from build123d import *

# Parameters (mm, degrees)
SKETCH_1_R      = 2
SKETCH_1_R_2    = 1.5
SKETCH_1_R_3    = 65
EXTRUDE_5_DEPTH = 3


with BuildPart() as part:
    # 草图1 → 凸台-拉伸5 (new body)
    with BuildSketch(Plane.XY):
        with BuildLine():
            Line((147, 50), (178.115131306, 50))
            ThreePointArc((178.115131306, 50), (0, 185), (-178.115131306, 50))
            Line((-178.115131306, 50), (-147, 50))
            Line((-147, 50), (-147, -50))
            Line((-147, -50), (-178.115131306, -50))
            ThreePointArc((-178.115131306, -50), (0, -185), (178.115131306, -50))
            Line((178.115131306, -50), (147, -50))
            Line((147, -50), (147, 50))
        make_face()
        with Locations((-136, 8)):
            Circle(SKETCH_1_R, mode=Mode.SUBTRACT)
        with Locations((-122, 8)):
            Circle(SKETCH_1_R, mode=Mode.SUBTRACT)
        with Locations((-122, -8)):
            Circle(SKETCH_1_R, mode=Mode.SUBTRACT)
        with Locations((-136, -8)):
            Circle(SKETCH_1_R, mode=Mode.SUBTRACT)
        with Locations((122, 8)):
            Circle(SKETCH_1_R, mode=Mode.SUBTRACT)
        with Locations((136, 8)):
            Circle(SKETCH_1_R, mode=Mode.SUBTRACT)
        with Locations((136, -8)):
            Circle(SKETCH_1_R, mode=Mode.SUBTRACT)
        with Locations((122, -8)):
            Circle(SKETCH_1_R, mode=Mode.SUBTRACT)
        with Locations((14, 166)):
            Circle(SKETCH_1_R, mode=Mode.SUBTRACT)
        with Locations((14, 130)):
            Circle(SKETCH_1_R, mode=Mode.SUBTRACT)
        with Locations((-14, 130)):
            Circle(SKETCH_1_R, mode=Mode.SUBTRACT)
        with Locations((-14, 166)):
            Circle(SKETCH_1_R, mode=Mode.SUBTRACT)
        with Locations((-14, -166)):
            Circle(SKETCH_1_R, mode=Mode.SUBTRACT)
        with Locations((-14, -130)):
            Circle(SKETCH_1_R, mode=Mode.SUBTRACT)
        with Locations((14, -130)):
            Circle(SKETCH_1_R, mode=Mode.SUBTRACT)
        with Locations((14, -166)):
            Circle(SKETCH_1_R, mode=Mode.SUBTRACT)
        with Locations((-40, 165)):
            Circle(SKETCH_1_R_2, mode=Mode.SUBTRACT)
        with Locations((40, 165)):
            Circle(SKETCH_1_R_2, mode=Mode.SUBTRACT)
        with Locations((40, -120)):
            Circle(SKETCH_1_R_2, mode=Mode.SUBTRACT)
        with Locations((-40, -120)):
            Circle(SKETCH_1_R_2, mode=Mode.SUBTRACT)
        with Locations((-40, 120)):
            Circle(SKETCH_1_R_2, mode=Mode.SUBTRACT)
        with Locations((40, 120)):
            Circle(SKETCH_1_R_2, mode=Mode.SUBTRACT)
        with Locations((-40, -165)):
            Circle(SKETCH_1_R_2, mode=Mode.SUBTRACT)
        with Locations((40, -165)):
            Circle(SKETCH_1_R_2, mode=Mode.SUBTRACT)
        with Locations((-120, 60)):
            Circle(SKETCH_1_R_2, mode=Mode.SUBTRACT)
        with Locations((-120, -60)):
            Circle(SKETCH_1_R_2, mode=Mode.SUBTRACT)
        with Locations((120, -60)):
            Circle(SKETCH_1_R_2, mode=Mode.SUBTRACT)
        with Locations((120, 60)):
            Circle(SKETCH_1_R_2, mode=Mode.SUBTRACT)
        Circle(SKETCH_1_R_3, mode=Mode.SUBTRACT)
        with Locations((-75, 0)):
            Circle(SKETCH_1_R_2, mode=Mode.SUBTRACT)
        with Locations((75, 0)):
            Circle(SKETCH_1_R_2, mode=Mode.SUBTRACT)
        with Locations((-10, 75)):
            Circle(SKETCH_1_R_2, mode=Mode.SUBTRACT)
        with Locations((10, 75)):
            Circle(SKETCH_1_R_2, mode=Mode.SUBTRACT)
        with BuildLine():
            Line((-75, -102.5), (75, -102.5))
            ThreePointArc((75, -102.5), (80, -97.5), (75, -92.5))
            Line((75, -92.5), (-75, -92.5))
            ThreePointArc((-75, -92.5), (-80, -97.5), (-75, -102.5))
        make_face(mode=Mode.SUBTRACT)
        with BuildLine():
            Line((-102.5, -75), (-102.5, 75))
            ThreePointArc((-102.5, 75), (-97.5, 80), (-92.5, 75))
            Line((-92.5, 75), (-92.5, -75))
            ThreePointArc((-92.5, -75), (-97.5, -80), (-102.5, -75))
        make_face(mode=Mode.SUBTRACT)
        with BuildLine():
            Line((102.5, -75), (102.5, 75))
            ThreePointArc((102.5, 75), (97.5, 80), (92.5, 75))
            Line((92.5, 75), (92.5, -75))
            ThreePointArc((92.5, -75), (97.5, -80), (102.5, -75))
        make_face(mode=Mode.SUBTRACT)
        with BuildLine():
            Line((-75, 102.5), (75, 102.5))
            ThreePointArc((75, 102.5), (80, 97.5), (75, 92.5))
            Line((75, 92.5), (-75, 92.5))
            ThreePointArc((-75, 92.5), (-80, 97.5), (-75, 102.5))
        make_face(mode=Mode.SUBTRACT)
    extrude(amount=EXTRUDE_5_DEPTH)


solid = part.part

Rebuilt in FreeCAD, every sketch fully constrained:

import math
import FreeCAD as App
import Part
import Sketcher

V = App.Vector
Q = App.Units.Quantity

doc = App.newDocument("Part")
body = doc.addObject("PartDesign::Body", "Body")

# Sketch on XY plane
sketch1 = body.newObject("Sketcher::SketchObject", "Sketch")
sketch1.AttachmentSupport = (doc.getObject("XY_Plane"), [""])
sketch1.MapMode = "FlatFace"
sketch1.addGeometry(Part.LineSegment(V(147, 50, 0), V(178.1, 50, 0)), False)
sketch1.addGeometry(Part.ArcOfCircle(Part.Circle(V(0, 0, 0), V(0, 0, 1), 185), math.radians(16), math.radians(164)), False)
sketch1.addGeometry(Part.LineSegment(V(-178.1, 50, 0), V(-147, 50, 0)), False)
sketch1.addGeometry(Part.LineSegment(V(-147, 50, 0), V(-147, -50, 0)), False)
sketch1.addGeometry(Part.LineSegment(V(-147, -50, 0), V(-178.1, -50, 0)), False)
sketch1.addGeometry(Part.ArcOfCircle(Part.Circle(V(0, 0, 0), V(0, 0, 1), 185), math.radians(-164), math.radians(-16)), False)
sketch1.addGeometry(Part.LineSegment(V(178.1, -50, 0), V(147, -50, 0)), False)
sketch1.addGeometry(Part.LineSegment(V(147, -50, 0), V(147, 50, 0)), False)
sketch1.addGeometry(Part.Circle(V(-40, -165, 0), V(0, 0, 1), 1.5), False)
sketch1.addGeometry(Part.Circle(V(-14, -166, 0), V(0, 0, 1), 2), False)
sketch1.addGeometry(Part.Circle(V(-14, -130, 0), V(0, 0, 1), 2), False)
sketch1.addGeometry(Part.Circle(V(-40, -120, 0), V(0, 0, 1), 1.5), False)
sketch1.addGeometry(Part.Circle(V(-120, -60, 0), V(0, 0, 1), 1.5), False)
sketch1.addGeometry(Part.Circle(V(-136, -8, 0), V(0, 0, 1), 2), False)
sketch1.addGeometry(Part.Circle(V(-122, -8, 0), V(0, 0, 1), 2), False)
sketch1.addGeometry(Part.Circle(V(14, -166, 0), V(0, 0, 1), 2), False)
sketch1.addGeometry(Part.Circle(V(14, -130, 0), V(0, 0, 1), 2), False)
sketch1.addGeometry(Part.Circle(V(40, -165, 0), V(0, 0, 1), 1.5), False)
sketch1.addGeometry(Part.LineSegment(V(75, -102.5, 0), V(-75, -102.5, 0)), False)
sketch1.addGeometry(Part.ArcOfCircle(Part.Circle(V(-75, -97.5, 0), V(0, 0, 1), 5), math.radians(90), math.radians(270)), False)
sketch1.addGeometry(Part.LineSegment(V(-75, -92.5, 0), V(75, -92.5, 0)), False)
sketch1.addGeometry(Part.ArcOfCircle(Part.Circle(V(75, -97.5, 0), V(0, 0, 1), 5), math.radians(-90), math.radians(90)), False)
sketch1.addGeometry(Part.Circle(V(40, -120, 0), V(0, 0, 1), 1.5), False)
sketch1.addGeometry(Part.Circle(V(120, -60, 0), V(0, 0, 1), 1.5), False)
sketch1.addGeometry(Part.Circle(V(122, -8, 0), V(0, 0, 1), 2), False)
sketch1.addGeometry(Part.Circle(V(136, -8, 0), V(0, 0, 1), 2), False)
sketch1.addGeometry(Part.Circle(V(-136, 8, 0), V(0, 0, 1), 2), False)
sketch1.addGeometry(Part.Circle(V(-122, 8, 0), V(0, 0, 1), 2), False)
sketch1.addGeometry(Part.ArcOfCircle(Part.Circle(V(-97.5, -75, 0), V(0, 0, 1), 5), math.radians(180), math.radians(360)), False)
sketch1.addGeometry(Part.LineSegment(V(-102.5, -75, 0), V(-102.5, 75, 0)), False)
sketch1.addGeometry(Part.ArcOfCircle(Part.Circle(V(-97.5, 75, 0), V(0, 0, 1), 5), math.radians(0), math.radians(180)), False)
sketch1.addGeometry(Part.LineSegment(V(-92.5, 75, 0), V(-92.5, -75, 0)), False)
sketch1.addGeometry(Part.Circle(V(-75, 0, 0), V(0, 0, 1), 1.5), False)
sketch1.addGeometry(Part.Circle(V(-120, 60, 0), V(0, 0, 1), 1.5), False)
sketch1.addGeometry(Part.Circle(V(-10, 75, 0), V(0, 0, 1), 1.5), False)
sketch1.addGeometry(Part.Circle(V(-40, 120, 0), V(0, 0, 1), 1.5), False)
sketch1.addGeometry(Part.Circle(V(-40, 165, 0), V(0, 0, 1), 1.5), False)
sketch1.addGeometry(Part.Circle(V(-14, 130, 0), V(0, 0, 1), 2), False)
sketch1.addGeometry(Part.Circle(V(-14, 166, 0), V(0, 0, 1), 2), False)
sketch1.addGeometry(Part.Circle(V(0, 0, 0), V(0, 0, 1), 65), False)
sketch1.addGeometry(Part.Circle(V(10, 75, 0), V(0, 0, 1), 1.5), False)
sketch1.addGeometry(Part.Circle(V(75, 0, 0), V(0, 0, 1), 1.5), False)
sketch1.addGeometry(Part.LineSegment(V(102.5, 75, 0), V(102.5, -75, 0)), False)
sketch1.addGeometry(Part.ArcOfCircle(Part.Circle(V(97.5, -75, 0), V(0, 0, 1), 5), math.radians(180), math.radians(360)), False)
sketch1.addGeometry(Part.LineSegment(V(92.5, -75, 0), V(92.5, 75, 0)), False)
sketch1.addGeometry(Part.ArcOfCircle(Part.Circle(V(97.5, 75, 0), V(0, 0, 1), 5), math.radians(0), math.radians(180)), False)
sketch1.addGeometry(Part.Circle(V(122, 8, 0), V(0, 0, 1), 2), False)
sketch1.addGeometry(Part.Circle(V(136, 8, 0), V(0, 0, 1), 2), False)
sketch1.addGeometry(Part.Circle(V(120, 60, 0), V(0, 0, 1), 1.5), False)
sketch1.addGeometry(Part.ArcOfCircle(Part.Circle(V(-75, 97.5, 0), V(0, 0, 1), 5), math.radians(90), math.radians(270)), False)
sketch1.addGeometry(Part.LineSegment(V(-75, 102.5, 0), V(75, 102.5, 0)), False)
sketch1.addGeometry(Part.ArcOfCircle(Part.Circle(V(75, 97.5, 0), V(0, 0, 1), 5), math.radians(-90), math.radians(90)), False)
sketch1.addGeometry(Part.LineSegment(V(75, 92.5, 0), V(-75, 92.5, 0)), False)
sketch1.addGeometry(Part.Circle(V(40, 120, 0), V(0, 0, 1), 1.5), False)
sketch1.addGeometry(Part.Circle(V(14, 130, 0), V(0, 0, 1), 2), False)
sketch1.addGeometry(Part.Circle(V(14, 166, 0), V(0, 0, 1), 2), False)
sketch1.addGeometry(Part.Circle(V(40, 165, 0), V(0, 0, 1), 1.5), False)
sketch1.addConstraint(Sketcher.Constraint("Coincident", 0, 2, 1, 1))
sketch1.addConstraint(Sketcher.Constraint("Coincident", 1, 2, 2, 1))
sketch1.addConstraint(Sketcher.Constraint("Coincident", 2, 2, 3, 1))
sketch1.addConstraint(Sketcher.Constraint("Coincident", 3, 2, 4, 1))
sketch1.addConstraint(Sketcher.Constraint("Coincident", 4, 2, 5, 1))
sketch1.addConstraint(Sketcher.Constraint("Coincident", 5, 2, 6, 1))
sketch1.addConstraint(Sketcher.Constraint("Coincident", 6, 2, 7, 1))
sketch1.addConstraint(Sketcher.Constraint("Coincident", 7, 2, 0, 1))
sketch1.addConstraint(Sketcher.Constraint("Tangent", 18, 2, 19, 2))
sketch1.addConstraint(Sketcher.Constraint("Tangent", 19, 1, 20, 1))
sketch1.addConstraint(Sketcher.Constraint("Tangent", 20, 2, 21, 2))
sketch1.addConstraint(Sketcher.Constraint("Tangent", 21, 1, 18, 1))
sketch1.addConstraint(Sketcher.Constraint("Tangent", 28, 1, 29, 1))
sketch1.addConstraint(Sketcher.Constraint("Tangent", 29, 2, 30, 2))
sketch1.addConstraint(Sketcher.Constraint("Tangent", 30, 1, 31, 1))
sketch1.addConstraint(Sketcher.Constraint("Tangent", 31, 2, 28, 2))
sketch1.addConstraint(Sketcher.Constraint("Tangent", 42, 2, 43, 2))
sketch1.addConstraint(Sketcher.Constraint("Tangent", 43, 1, 44, 1))
sketch1.addConstraint(Sketcher.Constraint("Tangent", 44, 2, 45, 2))
sketch1.addConstraint(Sketcher.Constraint("Tangent", 45, 1, 42, 1))
sketch1.addConstraint(Sketcher.Constraint("Tangent", 49, 1, 50, 1))
sketch1.addConstraint(Sketcher.Constraint("Tangent", 50, 2, 51, 2))
sketch1.addConstraint(Sketcher.Constraint("Tangent", 51, 1, 52, 1))
sketch1.addConstraint(Sketcher.Constraint("Tangent", 52, 2, 49, 2))
sketch1.addConstraint(Sketcher.Constraint("Horizontal", 0))
sketch1.addConstraint(Sketcher.Constraint("Horizontal", 2))
sketch1.addConstraint(Sketcher.Constraint("Vertical", 3))
sketch1.addConstraint(Sketcher.Constraint("Horizontal", 4))
sketch1.addConstraint(Sketcher.Constraint("Horizontal", 6))
sketch1.addConstraint(Sketcher.Constraint("Vertical", 7))
sketch1.addConstraint(Sketcher.Constraint("Horizontal", 18))
sketch1.addConstraint(Sketcher.Constraint("Horizontal", 20))
sketch1.addConstraint(Sketcher.Constraint("Vertical", 29))
sketch1.addConstraint(Sketcher.Constraint("Vertical", 31))
sketch1.addConstraint(Sketcher.Constraint("Vertical", 42))
sketch1.addConstraint(Sketcher.Constraint("Vertical", 44))
sketch1.addConstraint(Sketcher.Constraint("Horizontal", 50))
sketch1.addConstraint(Sketcher.Constraint("Horizontal", 52))
sketch1.addConstraint(Sketcher.Constraint("Coincident", 1, 3, -1, 1))
sketch1.addConstraint(Sketcher.Constraint("Coincident", 5, 3, -1, 1))
sketch1.addConstraint(Sketcher.Constraint("Coincident", 39, 3, -1, 1))
sketch1.addConstraint(Sketcher.Constraint("Equal", 1, 5))
sketch1.addConstraint(Sketcher.Constraint("Equal", 9, 10))
sketch1.addConstraint(Sketcher.Constraint("Equal", 8, 11))
sketch1.addConstraint(Sketcher.Constraint("Equal", 11, 12))
sketch1.addConstraint(Sketcher.Constraint("Equal", 10, 13))
sketch1.addConstraint(Sketcher.Constraint("Equal", 13, 14))
sketch1.addConstraint(Sketcher.Constraint("Equal", 14, 15))
sketch1.addConstraint(Sketcher.Constraint("Equal", 15, 16))
sketch1.addConstraint(Sketcher.Constraint("Equal", 12, 17))
sketch1.addConstraint(Sketcher.Constraint("Equal", 17, 22))
sketch1.addConstraint(Sketcher.Constraint("Equal", 22, 23))
sketch1.addConstraint(Sketcher.Constraint("Equal", 16, 24))
sketch1.addConstraint(Sketcher.Constraint("Equal", 24, 25))
sketch1.addConstraint(Sketcher.Constraint("Equal", 25, 26))
sketch1.addConstraint(Sketcher.Constraint("Equal", 26, 27))
sketch1.addConstraint(Sketcher.Constraint("Equal", 21, 28))
sketch1.addConstraint(Sketcher.Constraint("Equal", 23, 32))
sketch1.addConstraint(Sketcher.Constraint("Equal", 32, 33))
sketch1.addConstraint(Sketcher.Constraint("Equal", 33, 34))
sketch1.addConstraint(Sketcher.Constraint("Equal", 34, 35))
sketch1.addConstraint(Sketcher.Constraint("Equal", 35, 36))
sketch1.addConstraint(Sketcher.Constraint("Equal", 27, 37))
sketch1.addConstraint(Sketcher.Constraint("Equal", 37, 38))
sketch1.addConstraint(Sketcher.Constraint("Equal", 36, 40))
sketch1.addConstraint(Sketcher.Constraint("Equal", 40, 41))
sketch1.addConstraint(Sketcher.Constraint("Equal", 30, 43))
sketch1.addConstraint(Sketcher.Constraint("Equal", 38, 46))
sketch1.addConstraint(Sketcher.Constraint("Equal", 46, 47))
sketch1.addConstraint(Sketcher.Constraint("Equal", 41, 48))
sketch1.addConstraint(Sketcher.Constraint("Equal", 45, 49))
sketch1.addConstraint(Sketcher.Constraint("Equal", 48, 53))
sketch1.addConstraint(Sketcher.Constraint("Equal", 47, 54))
sketch1.addConstraint(Sketcher.Constraint("Equal", 54, 55))
sketch1.addConstraint(Sketcher.Constraint("Equal", 53, 56))
sketch1.addConstraint(Sketcher.Constraint("Symmetric", 25, 3, 26, 3, -1, 1))
sketch1.addConstraint(Sketcher.Constraint("Symmetric", 24, 3, 27, 3, -1, 1))
sketch1.addConstraint(Sketcher.Constraint("Symmetric", 23, 3, 33, 3, -1, 1))
sketch1.addConstraint(Sketcher.Constraint("Symmetric", 22, 3, 35, 3, -1, 1))
sketch1.addConstraint(Sketcher.Constraint("Symmetric", 17, 3, 36, 3, -1, 1))
sketch1.addConstraint(Sketcher.Constraint("Symmetric", 16, 3, 37, 3, -1, 1))
sketch1.addConstraint(Sketcher.Constraint("Symmetric", 15, 3, 38, 3, -1, 1))
sketch1.addConstraint(Sketcher.Constraint("Symmetric", 32, 3, 41, 3, -1, 1))
sketch1.addConstraint(Sketcher.Constraint("Symmetric", 30, 3, 43, 3, -1, 1))
sketch1.addConstraint(Sketcher.Constraint("Symmetric", 14, 3, 46, 3, -1, 1))
sketch1.addConstraint(Sketcher.Constraint("Symmetric", 13, 3, 47, 3, -1, 1))
sketch1.addConstraint(Sketcher.Constraint("Symmetric", 12, 3, 48, 3, -1, 1))
sketch1.addConstraint(Sketcher.Constraint("Symmetric", 21, 3, 49, 3, -1, 1))
sketch1.addConstraint(Sketcher.Constraint("Symmetric", 11, 3, 53, 3, -1, 1))
sketch1.addConstraint(Sketcher.Constraint("Symmetric", 10, 3, 54, 3, -1, 1))
sketch1.addConstraint(Sketcher.Constraint("Symmetric", 9, 3, 55, 3, -1, 1))
sketch1.addConstraint(Sketcher.Constraint("Symmetric", 8, 3, 56, 3, -1, 1))
sketch1.addConstraint(Sketcher.Constraint("Symmetric", 2, 2, 6, 2, -1, 1))
sketch1.addConstraint(Sketcher.Constraint("Symmetric", 9, 3, 15, 3, -2))
sketch1.addConstraint(Sketcher.Constraint("Symmetric", 10, 3, 16, 3, -2))
sketch1.addConstraint(Sketcher.Constraint("Symmetric", 8, 3, 17, 3, -2))
sketch1.addConstraint(Sketcher.Constraint("Symmetric", 11, 3, 22, 3, -2))
sketch1.addConstraint(Sketcher.Constraint("Symmetric", 12, 3, 23, 3, -2))
sketch1.addConstraint(Sketcher.Constraint("Symmetric", 14, 3, 24, 3, -2))
sketch1.addConstraint(Sketcher.Constraint("Symmetric", 13, 3, 25, 3, -2))
sketch1.addConstraint(Sketcher.Constraint("Symmetric", 34, 3, 40, 3, -2))
sketch1.addConstraint(Sketcher.Constraint("PointOnObject", 32, 3, -1))
sketch1.addConstraint(Sketcher.Constraint("Horizontal", 13, 3, 14, 3))
sketch1.addConstraint(Sketcher.Constraint("Horizontal", 30, 3, 34, 3))
sketch1.addConstraint(Sketcher.Constraint("Horizontal", 28, 3, 43, 3))
sketch1.addConstraint(Sketcher.Constraint("Horizontal", 40, 3, 45, 3))
sketch1.addConstraint(Sketcher.Constraint("Horizontal", 0, 2, 1, 2))
sketch1.addConstraint(Sketcher.Constraint("Horizontal", 4, 2, 5, 2))
sketch1.addConstraint(Sketcher.Constraint("Vertical", 9, 3, 10, 3))
sketch1.addConstraint(Sketcher.Constraint("Vertical", 8, 3, 11, 3))
sketch1.addConstraint(Sketcher.Constraint("Vertical", 19, 3, 32, 3))
sketch1.addConstraint(Sketcher.Constraint("Vertical", 21, 3, 41, 3))
sketch1.addConstraint(Sketcher.Constraint("Vertical", 41, 3, 51, 3))
sketch1.addConstraint(Sketcher.Constraint("Equal", 52, 29))
sketch1.addConstraint(Sketcher.Constraint("Diameter", 8, Q("3 mm")))
sketch1.addConstraint(Sketcher.Constraint("Diameter", 9, Q("4 mm")))
sketch1.addConstraint(Sketcher.Constraint("Diameter", 39, Q("130 mm")))
sketch1.addConstraint(Sketcher.Constraint("Radius", 1, Q("185 mm")))
sketch1.addConstraint(Sketcher.Constraint("Radius", 19, Q("5 mm")))
sketch1.addConstraint(Sketcher.Constraint("DistanceX", 18, 2, 18, 1, Q("150 mm")))
sketch1.addConstraint(Sketcher.Constraint("DistanceY", 3, 2, 3, 1, Q("100 mm")))
sketch1.addConstraint(Sketcher.Constraint("DistanceX", 8, 3, -1, 1, Q("40 mm")))
sketch1.addConstraint(Sketcher.Constraint("DistanceY", 8, 3, -1, 1, Q("165 mm")))
sketch1.addConstraint(Sketcher.Constraint("DistanceX", 9, 3, -1, 1, Q("14 mm")))
sketch1.addConstraint(Sketcher.Constraint("DistanceY", 9, 3, -1, 1, Q("166 mm")))
sketch1.addConstraint(Sketcher.Constraint("DistanceY", 10, 3, -1, 1, Q("130 mm")))
sketch1.addConstraint(Sketcher.Constraint("DistanceY", 11, 3, -1, 1, Q("120 mm")))
sketch1.addConstraint(Sketcher.Constraint("DistanceX", 12, 3, -1, 1, Q("120 mm")))
sketch1.addConstraint(Sketcher.Constraint("DistanceY", 12, 3, -1, 1, Q("60 mm")))
sketch1.addConstraint(Sketcher.Constraint("DistanceX", 13, 3, -1, 1, Q("136 mm")))
sketch1.addConstraint(Sketcher.Constraint("DistanceY", 13, 3, -1, 1, Q("8 mm")))
sketch1.addConstraint(Sketcher.Constraint("DistanceX", 14, 3, -1, 1, Q("122 mm")))
sketch1.addConstraint(Sketcher.Constraint("DistanceX", 34, 3, -1, 1, Q("10 mm")))
sketch1.addConstraint(Sketcher.Constraint("DistanceX", 2, 2, -1, 1, Q("147 mm")))
sketch1.addConstraint(Sketcher.Constraint("DistanceY", 19, 3, -1, 1, Q("97.5 mm")))
sketch1.addConstraint(Sketcher.Constraint("DistanceX", 28, 3, -1, 1, Q("97.5 mm")))
pad1 = body.newObject("PartDesign::Pad", "Pad")
pad1.Profile = sketch1
pad1.Length = 3

doc.recompute()
